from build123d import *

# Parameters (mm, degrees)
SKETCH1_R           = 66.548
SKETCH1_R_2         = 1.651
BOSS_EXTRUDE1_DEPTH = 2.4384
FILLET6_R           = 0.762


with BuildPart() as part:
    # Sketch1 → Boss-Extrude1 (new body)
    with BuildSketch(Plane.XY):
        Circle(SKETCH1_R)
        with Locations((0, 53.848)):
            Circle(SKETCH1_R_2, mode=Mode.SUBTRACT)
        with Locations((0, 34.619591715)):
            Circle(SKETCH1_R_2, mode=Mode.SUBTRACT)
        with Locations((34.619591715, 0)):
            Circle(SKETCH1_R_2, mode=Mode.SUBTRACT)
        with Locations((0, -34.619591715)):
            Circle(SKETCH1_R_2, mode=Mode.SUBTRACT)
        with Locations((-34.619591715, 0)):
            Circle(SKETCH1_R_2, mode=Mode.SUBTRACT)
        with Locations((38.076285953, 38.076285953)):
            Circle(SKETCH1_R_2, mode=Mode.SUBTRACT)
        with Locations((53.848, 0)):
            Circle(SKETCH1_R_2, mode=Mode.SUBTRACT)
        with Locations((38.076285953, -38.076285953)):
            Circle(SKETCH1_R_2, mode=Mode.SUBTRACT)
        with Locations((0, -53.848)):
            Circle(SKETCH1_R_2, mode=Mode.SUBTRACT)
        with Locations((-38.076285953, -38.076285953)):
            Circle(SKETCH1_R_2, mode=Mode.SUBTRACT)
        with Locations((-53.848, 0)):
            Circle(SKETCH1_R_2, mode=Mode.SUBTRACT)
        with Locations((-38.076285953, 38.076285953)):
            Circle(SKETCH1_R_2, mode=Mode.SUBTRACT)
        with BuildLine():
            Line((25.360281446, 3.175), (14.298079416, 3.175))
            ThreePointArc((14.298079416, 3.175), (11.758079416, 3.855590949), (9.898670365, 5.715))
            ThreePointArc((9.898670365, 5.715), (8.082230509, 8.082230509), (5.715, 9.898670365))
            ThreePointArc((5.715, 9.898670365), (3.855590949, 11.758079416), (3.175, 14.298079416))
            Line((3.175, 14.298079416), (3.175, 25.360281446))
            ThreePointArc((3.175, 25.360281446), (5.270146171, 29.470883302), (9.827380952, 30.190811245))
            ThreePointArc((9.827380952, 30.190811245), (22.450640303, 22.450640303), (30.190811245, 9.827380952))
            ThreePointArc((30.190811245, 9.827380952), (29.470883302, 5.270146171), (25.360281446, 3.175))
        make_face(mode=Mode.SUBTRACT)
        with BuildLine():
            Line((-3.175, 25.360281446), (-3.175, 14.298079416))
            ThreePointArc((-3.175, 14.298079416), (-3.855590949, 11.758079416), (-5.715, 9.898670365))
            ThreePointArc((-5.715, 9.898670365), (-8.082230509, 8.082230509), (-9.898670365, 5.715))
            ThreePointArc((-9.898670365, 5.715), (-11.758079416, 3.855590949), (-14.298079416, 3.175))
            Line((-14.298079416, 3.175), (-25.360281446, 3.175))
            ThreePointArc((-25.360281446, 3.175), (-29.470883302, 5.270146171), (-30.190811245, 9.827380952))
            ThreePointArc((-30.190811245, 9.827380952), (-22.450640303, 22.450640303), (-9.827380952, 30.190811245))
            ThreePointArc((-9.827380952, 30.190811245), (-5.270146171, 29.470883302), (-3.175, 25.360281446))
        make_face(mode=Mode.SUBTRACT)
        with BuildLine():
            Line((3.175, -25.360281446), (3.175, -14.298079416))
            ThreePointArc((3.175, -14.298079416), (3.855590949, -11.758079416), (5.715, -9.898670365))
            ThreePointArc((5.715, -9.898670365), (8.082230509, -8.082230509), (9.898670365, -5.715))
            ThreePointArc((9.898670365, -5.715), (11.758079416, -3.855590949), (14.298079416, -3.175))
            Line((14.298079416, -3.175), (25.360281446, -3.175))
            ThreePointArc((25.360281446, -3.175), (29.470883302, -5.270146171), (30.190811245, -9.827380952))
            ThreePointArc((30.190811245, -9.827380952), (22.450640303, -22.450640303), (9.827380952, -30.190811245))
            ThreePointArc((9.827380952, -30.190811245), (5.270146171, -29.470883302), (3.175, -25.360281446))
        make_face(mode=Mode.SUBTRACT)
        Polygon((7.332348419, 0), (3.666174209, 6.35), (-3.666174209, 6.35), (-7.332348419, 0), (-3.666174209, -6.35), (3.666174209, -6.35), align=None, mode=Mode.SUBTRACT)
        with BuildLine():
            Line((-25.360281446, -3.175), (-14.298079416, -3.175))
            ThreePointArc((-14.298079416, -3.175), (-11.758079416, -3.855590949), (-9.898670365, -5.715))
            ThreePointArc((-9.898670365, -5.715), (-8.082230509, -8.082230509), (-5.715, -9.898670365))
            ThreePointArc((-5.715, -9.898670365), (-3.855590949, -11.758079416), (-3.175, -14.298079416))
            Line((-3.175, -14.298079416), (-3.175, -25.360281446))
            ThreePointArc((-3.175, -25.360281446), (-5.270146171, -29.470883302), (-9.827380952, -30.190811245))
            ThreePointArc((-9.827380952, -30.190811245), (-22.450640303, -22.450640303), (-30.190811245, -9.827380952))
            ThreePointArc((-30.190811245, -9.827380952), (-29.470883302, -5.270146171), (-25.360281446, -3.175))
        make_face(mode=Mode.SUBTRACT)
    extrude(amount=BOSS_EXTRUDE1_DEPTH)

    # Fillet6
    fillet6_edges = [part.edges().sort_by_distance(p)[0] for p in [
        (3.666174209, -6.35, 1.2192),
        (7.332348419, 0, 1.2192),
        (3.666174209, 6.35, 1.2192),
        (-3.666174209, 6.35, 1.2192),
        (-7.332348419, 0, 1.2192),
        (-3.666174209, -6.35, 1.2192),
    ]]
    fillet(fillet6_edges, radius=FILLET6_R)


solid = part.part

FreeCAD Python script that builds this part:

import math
import FreeCAD as App
import Part
import Sketcher
from FreeCAD import Vector
Q = App.Units.Quantity


def edges_at(feature, points):
    """Names of the edges that pass closest to the given points."""
    edges = feature.Shape.Edges
    near = lambda p: min(range(len(edges)), key=lambda i: edges[i].distToShape(Part.Vertex(*p))[0])
    return sorted({f"Edge{near(p) + 1}" for p in points})


def add_polygon(sketch, points):
    """Adds a closed chain of lines whose ends are joined by coincident constraints."""
    first, n = sketch.GeometryCount, len(points)
    for a, b in zip(points, points[1:] + points[:1]):
        sketch.addGeometry(Part.LineSegment(App.Vector(*a, 0), App.Vector(*b, 0)), False)
    for i in range(n):
        sketch.addConstraint(Sketcher.Constraint("Coincident", first + i, 2, first + (i + 1) % n, 1))

doc = App.newDocument("Part")
body = doc.addObject("PartDesign::Body", "Body")

# Sketch on XY plane
sketch1 = body.newObject("Sketcher::SketchObject", "Sketch")
sketch1.AttachmentSupport = (doc.getObject("XY_Plane"), [""])
sketch1.MapMode = "FlatFace"
sketch1.addGeometry(Part.Circle(Vector(0, 0, 0), Vector(0, 0, 1), 66.5), False)  # 0
sketch1.addGeometry(Part.Circle(Vector(-38.1, -38.1, 0), Vector(0, 0, 1), 1.7), False)  # 1
sketch1.addGeometry(Part.ArcOfCircle(Part.Circle(Vector(-25.4, -8.3, 0), Vector(0, 0, 1), 5.1), math.radians(90), math.radians(198)), False)  # 2
sketch1.addGeometry(Part.LineSegment(Vector(-25.4, -3.2, 0), Vector(-14.3, -3.2, 0)), False)  # 3
sketch1.addGeometry(Part.ArcOfCircle(Part.Circle(Vector(-14.3, -8.3, 0), Vector(0, 0, 1), 5.1), math.radians(30), math.radians(90)), False)  # 4
sketch1.addGeometry(Part.ArcOfCircle(Part.Circle(Vector(0, 0, 0), Vector(0, 0, 1), 11.4), math.radians(-150), math.radians(-120)), False)  # 5
sketch1.addGeometry(Part.ArcOfCircle(Part.Circle(Vector(-8.3, -14.3, 0), Vector(0, 0, 1), 5.1), math.radians(0), math.radians(60)), False)  # 6
sketch1.addGeometry(Part.LineSegment(Vector(-3.2, -14.3, 0), Vector(-3.2, -25.4, 0)), False)  # 7
sketch1.addGeometry(Part.ArcOfCircle(Part.Circle(Vector(-8.3, -25.4, 0), Vector(0, 0, 1), 5.1), math.radians(-108), math.radians(0)), False)  # 8
sketch1.addGeometry(Part.ArcOfCircle(Part.Circle(Vector(0, 0, 0), Vector(0, 0, 1), 31.7), math.radians(-162), math.radians(-108)), False)  # 9
sketch1.addGeometry(Part.Circle(Vector(0, -53.8, 0), Vector(0, 0, 1), 1.7), False)  # 10
sketch1.addGeometry(Part.Circle(Vector(0, -34.6, 0), Vector(0, 0, 1), 1.7), False)  # 11
sketch1.addGeometry(Part.Circle(Vector(38.1, -38.1, 0), Vector(0, 0, 1), 1.7), False)  # 12
sketch1.addGeometry(Part.ArcOfCircle(Part.Circle(Vector(8.3, -25.4, 0), Vector(0, 0, 1), 5.1), math.radians(180), math.radians(288)), False)  # 13
sketch1.addGeometry(Part.LineSegment(Vector(3.2, -25.4, 0), Vector(3.2, -14.3, 0)), False)  # 14
sketch1.addGeometry(Part.ArcOfCircle(Part.Circle(Vector(8.3, -14.3, 0), Vector(0, 0, 1), 5.1), math.radians(120), math.radians(180)), False)  # 15
sketch1.addGeometry(Part.ArcOfCircle(Part.Circle(Vector(0, 0, 0), Vector(0, 0, 1), 11.4), math.radians(-60), math.radians(-30)), False)  # 16
sketch1.addGeometry(Part.ArcOfCircle(Part.Circle(Vector(14.3, -8.3, 0), Vector(0, 0, 1), 5.1), math.radians(90), math.radians(150)), False)  # 17
sketch1.addGeometry(Part.LineSegment(Vector(14.3, -3.2, 0), Vector(25.4, -3.2, 0)), False)  # 18
sketch1.addGeometry(Part.ArcOfCircle(Part.Circle(Vector(25.4, -8.3, 0), Vector(0, 0, 1), 5.1), math.radians(-18), math.radians(90)), False)  # 19
sketch1.addGeometry(Part.ArcOfCircle(Part.Circle(Vector(0, 0, 0), Vector(0, 0, 1), 31.7), math.radians(-72), math.radians(-18)), False)  # 20
sketch1.addGeometry(Part.Circle(Vector(-53.8, 0, 0), Vector(0, 0, 1), 1.7), False)  # 21
sketch1.addGeometry(Part.Circle(Vector(-34.6, 0, 0), Vector(0, 0, 1), 1.7), False)  # 22
sketch1.addGeometry(Part.ArcOfCircle(Part.Circle(Vector(-8.3, 25.4, 0), Vector(0, 0, 1), 5.1), math.radians(0), math.radians(108)), False)  # 23
sketch1.addGeometry(Part.LineSegment(Vector(-3.2, 25.4, 0), Vector(-3.2, 14.3, 0)), False)  # 24
sketch1.addGeometry(Part.ArcOfCircle(Part.Circle(Vector(-8.3, 14.3, 0), Vector(0, 0, 1), 5.1), math.radians(-60), math.radians(0)), False)  # 25
sketch1.addGeometry(Part.ArcOfCircle(Part.Circle(Vector(0, 0, 0), Vector(0, 0, 1), 11.4), math.radians(120), math.radians(150)), False)  # 26
sketch1.addGeometry(Part.ArcOfCircle(Part.Circle(Vector(-14.3, 8.3, 0), Vector(0, 0, 1), 5.1), math.radians(-90), math.radians(-30)), False)  # 27
sketch1.addGeometry(Part.LineSegment(Vector(-14.3, 3.2, 0), Vector(-25.4, 3.2, 0)), False)  # 28
sketch1.addGeometry(Part.ArcOfCircle(Part.Circle(Vector(-25.4, 8.3, 0), Vector(0, 0, 1), 5.1), math.radians(162), math.radians(270)), False)  # 29
sketch1.addGeometry(Part.ArcOfCircle(Part.Circle(Vector(0, 0, 0), Vector(0, 0, 1), 31.7), math.radians(108), math.radians(162)), False)  # 30
sketch1.addGeometry(Part.Circle(Vector(-38.1, 38.1, 0), Vector(0, 0, 1), 1.7), False)  # 31
add_polygon(sketch1, [(3.7, 6.3), (7.3, 0), (3.7, -6.3), (-3.7, -6.3), (-7.3, 0), (-3.7, 6.3)])  # lines 32-37
sketch1.addGeometry(Part.ArcOfCircle(Part.Circle(Vector(25.4, 8.3, 0), Vector(0, 0, 1), 5.1), math.radians(-90), math.radians(18)), False)  # 38
sketch1.addGeometry(Part.LineSegment(Vector(25.4, 3.2, 0), Vector(14.3, 3.2, 0)), False)  # 39
sketch1.addGeometry(Part.ArcOfCircle(Part.Circle(Vector(14.3, 8.3, 0), Vector(0, 0, 1), 5.1), math.radians(-150), math.radians(-90)), False)  # 40
sketch1.addGeometry(Part.ArcOfCircle(Part.Circle(Vector(0, 0, 0), Vector(0, 0, 1), 11.4), math.radians(30), math.radians(60)), False)  # 41
sketch1.addGeometry(Part.ArcOfCircle(Part.Circle(Vector(8.3, 14.3, 0), Vector(0, 0, 1), 5.1), math.radians(-180), math.radians(-120)), False)  # 42
sketch1.addGeometry(Part.LineSegment(Vector(3.2, 14.3, 0), Vector(3.2, 25.4, 0)), False)  # 43
sketch1.addGeometry(Part.ArcOfCircle(Part.Circle(Vector(8.3, 25.4, 0), Vector(0, 0, 1), 5.1), math.radians(72), math.radians(180)), False)  # 44
sketch1.addGeometry(Part.ArcOfCircle(Part.Circle(Vector(0, 0, 0), Vector(0, 0, 1), 31.7), math.radians(18), math.radians(72)), False)  # 45
sketch1.addGeometry(Part.Circle(Vector(34.6, 0, 0), Vector(0, 0, 1), 1.7), False)  # 46
sketch1.addGeometry(Part.Circle(Vector(53.8, 0, 0), Vector(0, 0, 1), 1.7), False)  # 47
sketch1.addGeometry(Part.Circle(Vector(0, 34.6, 0), Vector(0, 0, 1), 1.7), False)  # 48
sketch1.addGeometry(Part.Circle(Vector(0, 53.8, 0), Vector(0, 0, 1), 1.7), False)  # 49
sketch1.addGeometry(Part.Circle(Vector(38.1, 38.1, 0), Vector(0, 0, 1), 1.7), False)  # 50
sketch1.addConstraint([
    Sketcher.Constraint("Tangent", 2, 1, 3, 1),
    Sketcher.Constraint("Tangent", 3, 2, 4, 2),
    Sketcher.Constraint("Tangent", 4, 1, 5, 1),
    Sketcher.Constraint("Tangent", 5, 2, 6, 2),
    Sketcher.Constraint("Tangent", 6, 1, 7, 1),
    Sketcher.Constraint("Tangent", 7, 2, 8, 2),
    Sketcher.Constraint("Tangent", 8, 1, 9, 2),
    Sketcher.Constraint("Tangent", 9, 1, 2, 2),
    Sketcher.Constraint("Tangent", 13, 1, 14, 1),
    Sketcher.Constraint("Tangent", 14, 2, 15, 2),
    Sketcher.Constraint("Tangent", 15, 1, 16, 1),
    Sketcher.Constraint("Tangent", 16, 2, 17, 2),
    Sketcher.Constraint("Tangent", 17, 1, 18, 1),
    Sketcher.Constraint("Tangent", 18, 2, 19, 2),
    Sketcher.Constraint("Tangent", 19, 1, 20, 2),
    Sketcher.Constraint("Tangent", 20, 1, 13, 2),
    Sketcher.Constraint("Tangent", 23, 1, 24, 1),
    Sketcher.Constraint("Tangent", 24, 2, 25, 2),
    Sketcher.Constraint("Tangent", 25, 1, 26, 1),
    Sketcher.Constraint("Tangent", 26, 2, 27, 2),
    Sketcher.Constraint("Tangent", 27, 1, 28, 1),
    Sketcher.Constraint("Tangent", 28, 2, 29, 2),
    Sketcher.Constraint("Tangent", 29, 1, 30, 2),
    Sketcher.Constraint("Tangent", 30, 1, 23, 2),
    Sketcher.Constraint("Tangent", 38, 1, 39, 1),
    Sketcher.Constraint("Tangent", 39, 2, 40, 2),
    Sketcher.Constraint("Tangent", 40, 1, 41, 1),
    Sketcher.Constraint("Tangent", 41, 2, 42, 2),
    Sketcher.Constraint("Tangent", 42, 1, 43, 1),
    Sketcher.Constraint("Tangent", 43, 2, 44, 2),
    Sketcher.Constraint("Tangent", 44, 1, 45, 2),
    Sketcher.Constraint("Tangent", 45, 1, 38, 2),
    Sketcher.Constraint("Horizontal", 3),
    Sketcher.Constraint("Vertical", 7),
    Sketcher.Constraint("Vertical", 14),
    Sketcher.Constraint("Horizontal", 18),
    Sketcher.Constraint("Vertical", 24),
    Sketcher.Constraint("Horizontal", 28),
    Sketcher.Constraint("Horizontal", 34),
    Sketcher.Constraint("Horizontal", 37),
    Sketcher.Constraint("Horizontal", 39),
    Sketcher.Constraint("Vertical", 43),
    Sketcher.Constraint("Coincident", 0, 3, -1, 1),
    Sketcher.Constraint("Coincident", 5, 3, -1, 1),
    Sketcher.Constraint("Coincident", 9, 3, -1, 1),
    Sketcher.Constraint("Coincident", 16, 3, -1, 1),
    Sketcher.Constraint("Coincident", 20, 3, -1, 1),
    Sketcher.Constraint("Coincident", 26, 3, -1, 1),
    Sketcher.Constraint("Coincident", 30, 3, -1, 1),
    Sketcher.Constraint("Coincident", 41, 3, -1, 1),
    Sketcher.Constraint("Coincident", 45, 3, -1, 1),
    Sketcher.Constraint("Equal", 2, 4),
    Sketcher.Constraint("Equal", 4, 6),
    Sketcher.Constraint("Equal", 6, 8),
    Sketcher.Constraint("Equal", 1, 10),
    Sketcher.Constraint("Equal", 10, 11),
    Sketcher.Constraint("Equal", 11, 12),
    Sketcher.Constraint("Equal", 8, 13),
    Sketcher.Constraint("Equal", 13, 15),
    Sketcher.Constraint("Equal", 5, 16),
    Sketcher.Constraint("Equal", 15, 17),
    Sketcher.Constraint("Equal", 17, 19),
    Sketcher.Constraint("Equal", 9, 20),
    Sketcher.Constraint("Equal", 12, 21),
    Sketcher.Constraint("Equal", 21, 22),
    Sketcher.Constraint("Equal", 19, 23),
    Sketcher.Constraint("Equal", 23, 25),
    Sketcher.Constraint("Equal", 16, 26),
    Sketcher.Constraint("Equal", 25, 27),
    Sketcher.Constraint("Equal", 27, 29),
    Sketcher.Constraint("Equal", 20, 30),
    Sketcher.Constraint("Equal", 22, 31),
    Sketcher.Constraint("Equal", 29, 38),
    Sketcher.Constraint("Equal", 38, 40),
    Sketcher.Constraint("Equal", 26, 41),
    Sketcher.Constraint("Equal", 40, 42),
    Sketcher.Constraint("Equal", 42, 44),
    Sketcher.Constraint("Equal", 30, 45),
    Sketcher.Constraint("Equal", 31, 46),
    Sketcher.Constraint("Equal", 46, 47),
    Sketcher.Constraint("Equal", 47, 48),
    Sketcher.Constraint("Equal", 48, 49),
    Sketcher.Constraint("Equal", 49, 50),
    Sketcher.Constraint("Symmetric", 12, 3, 31, 3, -1, 1),
    Sketcher.Constraint("Symmetric", 22, 3, 46, 3, -1, 1),
    Sketcher.Constraint("Symmetric", 21, 3, 47, 3, -1, 1),
    Sketcher.Constraint("Symmetric", 11, 3, 48, 3, -1, 1),
    Sketcher.Constraint("Symmetric", 10, 3, 49, 3, -1, 1),
    Sketcher.Constraint("Symmetric", 1, 3, 50, 3, -1, 1),
    Sketcher.Constraint("Symmetric", 32, 2, 35, 2, -1, 1),
    Sketcher.Constraint("Symmetric", 33, 2, 36, 2, -1, 1),
    Sketcher.Constraint("Symmetric", 1, 3, 12, 3, -2),
    Sketcher.Constraint("PointOnObject", 10, 3, -2),
    Sketcher.Constraint("PointOnObject", 11, 3, -2),
    Sketcher.Constraint("PointOnObject", 21, 3, -1),
    Sketcher.Constraint("PointOnObject", 22, 3, -1),
    Sketcher.Constraint("PointOnObject", 32, 2, -1),
    Sketcher.Constraint("Parallel", 32, 35),
    Sketcher.Constraint("Horizontal", 8, 3, 13, 3),
    Sketcher.Constraint("Horizontal", 4, 3, 17, 3),
    Sketcher.Constraint("Horizontal", 29, 3, 38, 3),
    Sketcher.Constraint("Horizontal", 25, 3, 42, 3),
    Sketcher.Constraint("Vertical", 8, 3, 23, 3),
    Sketcher.Constraint("Vertical", 4, 3, 27, 3),
    Sketcher.Constraint("Vertical", 34, 2, 36, 2),
    Sketcher.Constraint("Equal", 39, 7),
    Sketcher.Constraint("Radius", 2, Q("0.2 in")),
    Sketcher.Constraint("Diameter", 0, Q("5.24 in")),
    Sketcher.Constraint("Diameter", 1, Q("0.13 in")),
    Sketcher.Constraint("Radius", 5, Q("0.45 in")),
    Sketcher.Constraint("Radius", 9, Q("1.25 in")),
    Sketcher.Constraint("Angle", 32, Q("-60 deg")),
    Sketcher.Constraint("DistanceY", 10, 3, -1, 1, Q("2.12 in")),
    Sketcher.Constraint("DistanceX", 21, 3, -1, 1, Q("2.12 in")),
    Sketcher.Constraint("DistanceY", 33, 2, -1, 1, Q("0.25 in")),
    Sketcher.Constraint("DistanceY", 2, 3, -1, 1, Q("0.325 in")),
    Sketcher.Constraint("DistanceX", 34, 2, 34, 1, 7.332348),
    Sketcher.Constraint("DistanceY", 11, 3, -1, 1, 34.619592),
    Sketcher.Constraint("DistanceX", 22, 3, -1, 1, 34.619592),
    Sketcher.Constraint("DistanceX", 1, 3, -1, 1, 38.076286),
    Sketcher.Constraint("DistanceY", 1, 3, -1, 1, 38.076286),
])
pad1 = body.newObject("PartDesign::Pad", "Pad")
pad1.Profile = sketch1
pad1.Length = Q("0.096 in")
doc.recompute()

fillet = body.newObject("PartDesign::Fillet", "Fillet")
fillet.Base = (pad1, edges_at(pad1, [
    (3.666, -6.35, 1.219),
    (7.332, 0, 1.219),
    (3.666, 6.35, 1.219),
    (-3.666, 6.35, 1.219),
    (-7.332, 0, 1.219),
    (-3.666, -6.35, 1.219),
]))
fillet.Radius = Q("0.03 in")

doc.recompute()
